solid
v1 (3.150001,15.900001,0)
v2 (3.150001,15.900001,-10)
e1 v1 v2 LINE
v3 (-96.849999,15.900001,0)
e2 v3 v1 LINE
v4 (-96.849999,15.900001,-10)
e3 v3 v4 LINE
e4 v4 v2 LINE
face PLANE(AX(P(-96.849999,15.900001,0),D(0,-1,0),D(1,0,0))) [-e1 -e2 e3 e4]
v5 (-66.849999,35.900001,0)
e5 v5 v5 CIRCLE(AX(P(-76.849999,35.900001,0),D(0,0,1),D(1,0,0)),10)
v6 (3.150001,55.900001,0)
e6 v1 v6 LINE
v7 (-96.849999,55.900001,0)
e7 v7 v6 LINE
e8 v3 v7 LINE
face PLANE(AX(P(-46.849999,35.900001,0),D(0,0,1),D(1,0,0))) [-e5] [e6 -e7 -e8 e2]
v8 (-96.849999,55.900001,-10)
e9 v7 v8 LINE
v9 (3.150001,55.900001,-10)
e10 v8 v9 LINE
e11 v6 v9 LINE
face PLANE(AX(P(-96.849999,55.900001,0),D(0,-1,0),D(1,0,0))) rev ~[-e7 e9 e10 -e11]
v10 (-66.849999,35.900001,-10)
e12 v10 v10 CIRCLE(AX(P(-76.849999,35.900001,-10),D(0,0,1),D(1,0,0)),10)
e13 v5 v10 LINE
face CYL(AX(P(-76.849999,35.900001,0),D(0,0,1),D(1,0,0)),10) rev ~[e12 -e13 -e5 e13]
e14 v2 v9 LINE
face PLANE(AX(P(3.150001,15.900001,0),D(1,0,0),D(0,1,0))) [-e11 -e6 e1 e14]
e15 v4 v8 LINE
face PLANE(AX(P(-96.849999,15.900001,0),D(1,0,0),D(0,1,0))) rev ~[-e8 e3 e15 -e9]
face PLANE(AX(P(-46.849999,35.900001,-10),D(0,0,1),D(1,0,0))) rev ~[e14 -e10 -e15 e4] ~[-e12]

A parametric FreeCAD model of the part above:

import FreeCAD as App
import Part
import Sketcher
from FreeCAD import Vector

doc = App.newDocument("Part")
body = doc.addObject("PartDesign::Body", "Body")

sketch1 = body.newObject("Sketcher::SketchObject", "Sketch")
sketch1.AttachmentSupport = (doc.getObject("XY_Plane"), [""])
sketch1.MapMode = "FlatFace"
sketch1.addGeometry(Part.LineSegment(Vector(-97, 56, 0), Vector(-97, 16, 0)), False)
sketch1.addGeometry(Part.LineSegment(Vector(-97, 16, 0), Vector(3, 16, 0)), False)
sketch1.addGeometry(Part.LineSegment(Vector(3, 16, 0), Vector(3, 56, 0)), False)
sketch1.addGeometry(Part.LineSegment(Vector(3, 56, 0), Vector(-97, 56, 0)), False)
sketch1.addGeometry(Part.Circle(Vector(-77, 36, 0), Vector(0, 0, 1), 10), False)
sketch1.addConstraint(Sketcher.Constraint("Coincident", 0, 2, 1, 1))
sketch1.addConstraint(Sketcher.Constraint("Coincident", 1, 2, 2, 1))
sketch1.addConstraint(Sketcher.Constraint("Coincident", 2, 2, 3, 1))
sketch1.addConstraint(Sketcher.Constraint("Coincident", 3, 2, 0, 1))
sketch1.addConstraint(Sketcher.Constraint("Vertical", 0))
sketch1.addConstraint(Sketcher.Constraint("Horizontal", 1))
sketch1.addConstraint(Sketcher.Constraint("Vertical", 2))
sketch1.addConstraint(Sketcher.Constraint("Horizontal", 3))
sketch1.addConstraint(Sketcher.Constraint("Diameter", 4, 20.0))
sketch1.addConstraint(Sketcher.Constraint("DistanceX", 1, 1, 1, 2, 100.0))
sketch1.addConstraint(Sketcher.Constraint("DistanceY", 0, 2, 0, 1, 40.0))
sketch1.addConstraint(Sketcher.Constraint("DistanceX", 0, 2, 4, 3, 20.0))
sketch1.addConstraint(Sketcher.Constraint("DistanceY", 0, 2, 4, 3, 20.0))
sketch1.addConstraint(Sketcher.Constraint("DistanceY", -1, 1, 4, 3, 35.900001))
sketch1.addConstraint(Sketcher.Constraint("DistanceX", 4, 3, -1, 1, 76.849999))
pad1 = body.newObject("PartDesign::Pad", "Pad")
pad1.Profile = sketch1
pad1.Length = 10
pad1.Reversed = True

doc.recompute()
